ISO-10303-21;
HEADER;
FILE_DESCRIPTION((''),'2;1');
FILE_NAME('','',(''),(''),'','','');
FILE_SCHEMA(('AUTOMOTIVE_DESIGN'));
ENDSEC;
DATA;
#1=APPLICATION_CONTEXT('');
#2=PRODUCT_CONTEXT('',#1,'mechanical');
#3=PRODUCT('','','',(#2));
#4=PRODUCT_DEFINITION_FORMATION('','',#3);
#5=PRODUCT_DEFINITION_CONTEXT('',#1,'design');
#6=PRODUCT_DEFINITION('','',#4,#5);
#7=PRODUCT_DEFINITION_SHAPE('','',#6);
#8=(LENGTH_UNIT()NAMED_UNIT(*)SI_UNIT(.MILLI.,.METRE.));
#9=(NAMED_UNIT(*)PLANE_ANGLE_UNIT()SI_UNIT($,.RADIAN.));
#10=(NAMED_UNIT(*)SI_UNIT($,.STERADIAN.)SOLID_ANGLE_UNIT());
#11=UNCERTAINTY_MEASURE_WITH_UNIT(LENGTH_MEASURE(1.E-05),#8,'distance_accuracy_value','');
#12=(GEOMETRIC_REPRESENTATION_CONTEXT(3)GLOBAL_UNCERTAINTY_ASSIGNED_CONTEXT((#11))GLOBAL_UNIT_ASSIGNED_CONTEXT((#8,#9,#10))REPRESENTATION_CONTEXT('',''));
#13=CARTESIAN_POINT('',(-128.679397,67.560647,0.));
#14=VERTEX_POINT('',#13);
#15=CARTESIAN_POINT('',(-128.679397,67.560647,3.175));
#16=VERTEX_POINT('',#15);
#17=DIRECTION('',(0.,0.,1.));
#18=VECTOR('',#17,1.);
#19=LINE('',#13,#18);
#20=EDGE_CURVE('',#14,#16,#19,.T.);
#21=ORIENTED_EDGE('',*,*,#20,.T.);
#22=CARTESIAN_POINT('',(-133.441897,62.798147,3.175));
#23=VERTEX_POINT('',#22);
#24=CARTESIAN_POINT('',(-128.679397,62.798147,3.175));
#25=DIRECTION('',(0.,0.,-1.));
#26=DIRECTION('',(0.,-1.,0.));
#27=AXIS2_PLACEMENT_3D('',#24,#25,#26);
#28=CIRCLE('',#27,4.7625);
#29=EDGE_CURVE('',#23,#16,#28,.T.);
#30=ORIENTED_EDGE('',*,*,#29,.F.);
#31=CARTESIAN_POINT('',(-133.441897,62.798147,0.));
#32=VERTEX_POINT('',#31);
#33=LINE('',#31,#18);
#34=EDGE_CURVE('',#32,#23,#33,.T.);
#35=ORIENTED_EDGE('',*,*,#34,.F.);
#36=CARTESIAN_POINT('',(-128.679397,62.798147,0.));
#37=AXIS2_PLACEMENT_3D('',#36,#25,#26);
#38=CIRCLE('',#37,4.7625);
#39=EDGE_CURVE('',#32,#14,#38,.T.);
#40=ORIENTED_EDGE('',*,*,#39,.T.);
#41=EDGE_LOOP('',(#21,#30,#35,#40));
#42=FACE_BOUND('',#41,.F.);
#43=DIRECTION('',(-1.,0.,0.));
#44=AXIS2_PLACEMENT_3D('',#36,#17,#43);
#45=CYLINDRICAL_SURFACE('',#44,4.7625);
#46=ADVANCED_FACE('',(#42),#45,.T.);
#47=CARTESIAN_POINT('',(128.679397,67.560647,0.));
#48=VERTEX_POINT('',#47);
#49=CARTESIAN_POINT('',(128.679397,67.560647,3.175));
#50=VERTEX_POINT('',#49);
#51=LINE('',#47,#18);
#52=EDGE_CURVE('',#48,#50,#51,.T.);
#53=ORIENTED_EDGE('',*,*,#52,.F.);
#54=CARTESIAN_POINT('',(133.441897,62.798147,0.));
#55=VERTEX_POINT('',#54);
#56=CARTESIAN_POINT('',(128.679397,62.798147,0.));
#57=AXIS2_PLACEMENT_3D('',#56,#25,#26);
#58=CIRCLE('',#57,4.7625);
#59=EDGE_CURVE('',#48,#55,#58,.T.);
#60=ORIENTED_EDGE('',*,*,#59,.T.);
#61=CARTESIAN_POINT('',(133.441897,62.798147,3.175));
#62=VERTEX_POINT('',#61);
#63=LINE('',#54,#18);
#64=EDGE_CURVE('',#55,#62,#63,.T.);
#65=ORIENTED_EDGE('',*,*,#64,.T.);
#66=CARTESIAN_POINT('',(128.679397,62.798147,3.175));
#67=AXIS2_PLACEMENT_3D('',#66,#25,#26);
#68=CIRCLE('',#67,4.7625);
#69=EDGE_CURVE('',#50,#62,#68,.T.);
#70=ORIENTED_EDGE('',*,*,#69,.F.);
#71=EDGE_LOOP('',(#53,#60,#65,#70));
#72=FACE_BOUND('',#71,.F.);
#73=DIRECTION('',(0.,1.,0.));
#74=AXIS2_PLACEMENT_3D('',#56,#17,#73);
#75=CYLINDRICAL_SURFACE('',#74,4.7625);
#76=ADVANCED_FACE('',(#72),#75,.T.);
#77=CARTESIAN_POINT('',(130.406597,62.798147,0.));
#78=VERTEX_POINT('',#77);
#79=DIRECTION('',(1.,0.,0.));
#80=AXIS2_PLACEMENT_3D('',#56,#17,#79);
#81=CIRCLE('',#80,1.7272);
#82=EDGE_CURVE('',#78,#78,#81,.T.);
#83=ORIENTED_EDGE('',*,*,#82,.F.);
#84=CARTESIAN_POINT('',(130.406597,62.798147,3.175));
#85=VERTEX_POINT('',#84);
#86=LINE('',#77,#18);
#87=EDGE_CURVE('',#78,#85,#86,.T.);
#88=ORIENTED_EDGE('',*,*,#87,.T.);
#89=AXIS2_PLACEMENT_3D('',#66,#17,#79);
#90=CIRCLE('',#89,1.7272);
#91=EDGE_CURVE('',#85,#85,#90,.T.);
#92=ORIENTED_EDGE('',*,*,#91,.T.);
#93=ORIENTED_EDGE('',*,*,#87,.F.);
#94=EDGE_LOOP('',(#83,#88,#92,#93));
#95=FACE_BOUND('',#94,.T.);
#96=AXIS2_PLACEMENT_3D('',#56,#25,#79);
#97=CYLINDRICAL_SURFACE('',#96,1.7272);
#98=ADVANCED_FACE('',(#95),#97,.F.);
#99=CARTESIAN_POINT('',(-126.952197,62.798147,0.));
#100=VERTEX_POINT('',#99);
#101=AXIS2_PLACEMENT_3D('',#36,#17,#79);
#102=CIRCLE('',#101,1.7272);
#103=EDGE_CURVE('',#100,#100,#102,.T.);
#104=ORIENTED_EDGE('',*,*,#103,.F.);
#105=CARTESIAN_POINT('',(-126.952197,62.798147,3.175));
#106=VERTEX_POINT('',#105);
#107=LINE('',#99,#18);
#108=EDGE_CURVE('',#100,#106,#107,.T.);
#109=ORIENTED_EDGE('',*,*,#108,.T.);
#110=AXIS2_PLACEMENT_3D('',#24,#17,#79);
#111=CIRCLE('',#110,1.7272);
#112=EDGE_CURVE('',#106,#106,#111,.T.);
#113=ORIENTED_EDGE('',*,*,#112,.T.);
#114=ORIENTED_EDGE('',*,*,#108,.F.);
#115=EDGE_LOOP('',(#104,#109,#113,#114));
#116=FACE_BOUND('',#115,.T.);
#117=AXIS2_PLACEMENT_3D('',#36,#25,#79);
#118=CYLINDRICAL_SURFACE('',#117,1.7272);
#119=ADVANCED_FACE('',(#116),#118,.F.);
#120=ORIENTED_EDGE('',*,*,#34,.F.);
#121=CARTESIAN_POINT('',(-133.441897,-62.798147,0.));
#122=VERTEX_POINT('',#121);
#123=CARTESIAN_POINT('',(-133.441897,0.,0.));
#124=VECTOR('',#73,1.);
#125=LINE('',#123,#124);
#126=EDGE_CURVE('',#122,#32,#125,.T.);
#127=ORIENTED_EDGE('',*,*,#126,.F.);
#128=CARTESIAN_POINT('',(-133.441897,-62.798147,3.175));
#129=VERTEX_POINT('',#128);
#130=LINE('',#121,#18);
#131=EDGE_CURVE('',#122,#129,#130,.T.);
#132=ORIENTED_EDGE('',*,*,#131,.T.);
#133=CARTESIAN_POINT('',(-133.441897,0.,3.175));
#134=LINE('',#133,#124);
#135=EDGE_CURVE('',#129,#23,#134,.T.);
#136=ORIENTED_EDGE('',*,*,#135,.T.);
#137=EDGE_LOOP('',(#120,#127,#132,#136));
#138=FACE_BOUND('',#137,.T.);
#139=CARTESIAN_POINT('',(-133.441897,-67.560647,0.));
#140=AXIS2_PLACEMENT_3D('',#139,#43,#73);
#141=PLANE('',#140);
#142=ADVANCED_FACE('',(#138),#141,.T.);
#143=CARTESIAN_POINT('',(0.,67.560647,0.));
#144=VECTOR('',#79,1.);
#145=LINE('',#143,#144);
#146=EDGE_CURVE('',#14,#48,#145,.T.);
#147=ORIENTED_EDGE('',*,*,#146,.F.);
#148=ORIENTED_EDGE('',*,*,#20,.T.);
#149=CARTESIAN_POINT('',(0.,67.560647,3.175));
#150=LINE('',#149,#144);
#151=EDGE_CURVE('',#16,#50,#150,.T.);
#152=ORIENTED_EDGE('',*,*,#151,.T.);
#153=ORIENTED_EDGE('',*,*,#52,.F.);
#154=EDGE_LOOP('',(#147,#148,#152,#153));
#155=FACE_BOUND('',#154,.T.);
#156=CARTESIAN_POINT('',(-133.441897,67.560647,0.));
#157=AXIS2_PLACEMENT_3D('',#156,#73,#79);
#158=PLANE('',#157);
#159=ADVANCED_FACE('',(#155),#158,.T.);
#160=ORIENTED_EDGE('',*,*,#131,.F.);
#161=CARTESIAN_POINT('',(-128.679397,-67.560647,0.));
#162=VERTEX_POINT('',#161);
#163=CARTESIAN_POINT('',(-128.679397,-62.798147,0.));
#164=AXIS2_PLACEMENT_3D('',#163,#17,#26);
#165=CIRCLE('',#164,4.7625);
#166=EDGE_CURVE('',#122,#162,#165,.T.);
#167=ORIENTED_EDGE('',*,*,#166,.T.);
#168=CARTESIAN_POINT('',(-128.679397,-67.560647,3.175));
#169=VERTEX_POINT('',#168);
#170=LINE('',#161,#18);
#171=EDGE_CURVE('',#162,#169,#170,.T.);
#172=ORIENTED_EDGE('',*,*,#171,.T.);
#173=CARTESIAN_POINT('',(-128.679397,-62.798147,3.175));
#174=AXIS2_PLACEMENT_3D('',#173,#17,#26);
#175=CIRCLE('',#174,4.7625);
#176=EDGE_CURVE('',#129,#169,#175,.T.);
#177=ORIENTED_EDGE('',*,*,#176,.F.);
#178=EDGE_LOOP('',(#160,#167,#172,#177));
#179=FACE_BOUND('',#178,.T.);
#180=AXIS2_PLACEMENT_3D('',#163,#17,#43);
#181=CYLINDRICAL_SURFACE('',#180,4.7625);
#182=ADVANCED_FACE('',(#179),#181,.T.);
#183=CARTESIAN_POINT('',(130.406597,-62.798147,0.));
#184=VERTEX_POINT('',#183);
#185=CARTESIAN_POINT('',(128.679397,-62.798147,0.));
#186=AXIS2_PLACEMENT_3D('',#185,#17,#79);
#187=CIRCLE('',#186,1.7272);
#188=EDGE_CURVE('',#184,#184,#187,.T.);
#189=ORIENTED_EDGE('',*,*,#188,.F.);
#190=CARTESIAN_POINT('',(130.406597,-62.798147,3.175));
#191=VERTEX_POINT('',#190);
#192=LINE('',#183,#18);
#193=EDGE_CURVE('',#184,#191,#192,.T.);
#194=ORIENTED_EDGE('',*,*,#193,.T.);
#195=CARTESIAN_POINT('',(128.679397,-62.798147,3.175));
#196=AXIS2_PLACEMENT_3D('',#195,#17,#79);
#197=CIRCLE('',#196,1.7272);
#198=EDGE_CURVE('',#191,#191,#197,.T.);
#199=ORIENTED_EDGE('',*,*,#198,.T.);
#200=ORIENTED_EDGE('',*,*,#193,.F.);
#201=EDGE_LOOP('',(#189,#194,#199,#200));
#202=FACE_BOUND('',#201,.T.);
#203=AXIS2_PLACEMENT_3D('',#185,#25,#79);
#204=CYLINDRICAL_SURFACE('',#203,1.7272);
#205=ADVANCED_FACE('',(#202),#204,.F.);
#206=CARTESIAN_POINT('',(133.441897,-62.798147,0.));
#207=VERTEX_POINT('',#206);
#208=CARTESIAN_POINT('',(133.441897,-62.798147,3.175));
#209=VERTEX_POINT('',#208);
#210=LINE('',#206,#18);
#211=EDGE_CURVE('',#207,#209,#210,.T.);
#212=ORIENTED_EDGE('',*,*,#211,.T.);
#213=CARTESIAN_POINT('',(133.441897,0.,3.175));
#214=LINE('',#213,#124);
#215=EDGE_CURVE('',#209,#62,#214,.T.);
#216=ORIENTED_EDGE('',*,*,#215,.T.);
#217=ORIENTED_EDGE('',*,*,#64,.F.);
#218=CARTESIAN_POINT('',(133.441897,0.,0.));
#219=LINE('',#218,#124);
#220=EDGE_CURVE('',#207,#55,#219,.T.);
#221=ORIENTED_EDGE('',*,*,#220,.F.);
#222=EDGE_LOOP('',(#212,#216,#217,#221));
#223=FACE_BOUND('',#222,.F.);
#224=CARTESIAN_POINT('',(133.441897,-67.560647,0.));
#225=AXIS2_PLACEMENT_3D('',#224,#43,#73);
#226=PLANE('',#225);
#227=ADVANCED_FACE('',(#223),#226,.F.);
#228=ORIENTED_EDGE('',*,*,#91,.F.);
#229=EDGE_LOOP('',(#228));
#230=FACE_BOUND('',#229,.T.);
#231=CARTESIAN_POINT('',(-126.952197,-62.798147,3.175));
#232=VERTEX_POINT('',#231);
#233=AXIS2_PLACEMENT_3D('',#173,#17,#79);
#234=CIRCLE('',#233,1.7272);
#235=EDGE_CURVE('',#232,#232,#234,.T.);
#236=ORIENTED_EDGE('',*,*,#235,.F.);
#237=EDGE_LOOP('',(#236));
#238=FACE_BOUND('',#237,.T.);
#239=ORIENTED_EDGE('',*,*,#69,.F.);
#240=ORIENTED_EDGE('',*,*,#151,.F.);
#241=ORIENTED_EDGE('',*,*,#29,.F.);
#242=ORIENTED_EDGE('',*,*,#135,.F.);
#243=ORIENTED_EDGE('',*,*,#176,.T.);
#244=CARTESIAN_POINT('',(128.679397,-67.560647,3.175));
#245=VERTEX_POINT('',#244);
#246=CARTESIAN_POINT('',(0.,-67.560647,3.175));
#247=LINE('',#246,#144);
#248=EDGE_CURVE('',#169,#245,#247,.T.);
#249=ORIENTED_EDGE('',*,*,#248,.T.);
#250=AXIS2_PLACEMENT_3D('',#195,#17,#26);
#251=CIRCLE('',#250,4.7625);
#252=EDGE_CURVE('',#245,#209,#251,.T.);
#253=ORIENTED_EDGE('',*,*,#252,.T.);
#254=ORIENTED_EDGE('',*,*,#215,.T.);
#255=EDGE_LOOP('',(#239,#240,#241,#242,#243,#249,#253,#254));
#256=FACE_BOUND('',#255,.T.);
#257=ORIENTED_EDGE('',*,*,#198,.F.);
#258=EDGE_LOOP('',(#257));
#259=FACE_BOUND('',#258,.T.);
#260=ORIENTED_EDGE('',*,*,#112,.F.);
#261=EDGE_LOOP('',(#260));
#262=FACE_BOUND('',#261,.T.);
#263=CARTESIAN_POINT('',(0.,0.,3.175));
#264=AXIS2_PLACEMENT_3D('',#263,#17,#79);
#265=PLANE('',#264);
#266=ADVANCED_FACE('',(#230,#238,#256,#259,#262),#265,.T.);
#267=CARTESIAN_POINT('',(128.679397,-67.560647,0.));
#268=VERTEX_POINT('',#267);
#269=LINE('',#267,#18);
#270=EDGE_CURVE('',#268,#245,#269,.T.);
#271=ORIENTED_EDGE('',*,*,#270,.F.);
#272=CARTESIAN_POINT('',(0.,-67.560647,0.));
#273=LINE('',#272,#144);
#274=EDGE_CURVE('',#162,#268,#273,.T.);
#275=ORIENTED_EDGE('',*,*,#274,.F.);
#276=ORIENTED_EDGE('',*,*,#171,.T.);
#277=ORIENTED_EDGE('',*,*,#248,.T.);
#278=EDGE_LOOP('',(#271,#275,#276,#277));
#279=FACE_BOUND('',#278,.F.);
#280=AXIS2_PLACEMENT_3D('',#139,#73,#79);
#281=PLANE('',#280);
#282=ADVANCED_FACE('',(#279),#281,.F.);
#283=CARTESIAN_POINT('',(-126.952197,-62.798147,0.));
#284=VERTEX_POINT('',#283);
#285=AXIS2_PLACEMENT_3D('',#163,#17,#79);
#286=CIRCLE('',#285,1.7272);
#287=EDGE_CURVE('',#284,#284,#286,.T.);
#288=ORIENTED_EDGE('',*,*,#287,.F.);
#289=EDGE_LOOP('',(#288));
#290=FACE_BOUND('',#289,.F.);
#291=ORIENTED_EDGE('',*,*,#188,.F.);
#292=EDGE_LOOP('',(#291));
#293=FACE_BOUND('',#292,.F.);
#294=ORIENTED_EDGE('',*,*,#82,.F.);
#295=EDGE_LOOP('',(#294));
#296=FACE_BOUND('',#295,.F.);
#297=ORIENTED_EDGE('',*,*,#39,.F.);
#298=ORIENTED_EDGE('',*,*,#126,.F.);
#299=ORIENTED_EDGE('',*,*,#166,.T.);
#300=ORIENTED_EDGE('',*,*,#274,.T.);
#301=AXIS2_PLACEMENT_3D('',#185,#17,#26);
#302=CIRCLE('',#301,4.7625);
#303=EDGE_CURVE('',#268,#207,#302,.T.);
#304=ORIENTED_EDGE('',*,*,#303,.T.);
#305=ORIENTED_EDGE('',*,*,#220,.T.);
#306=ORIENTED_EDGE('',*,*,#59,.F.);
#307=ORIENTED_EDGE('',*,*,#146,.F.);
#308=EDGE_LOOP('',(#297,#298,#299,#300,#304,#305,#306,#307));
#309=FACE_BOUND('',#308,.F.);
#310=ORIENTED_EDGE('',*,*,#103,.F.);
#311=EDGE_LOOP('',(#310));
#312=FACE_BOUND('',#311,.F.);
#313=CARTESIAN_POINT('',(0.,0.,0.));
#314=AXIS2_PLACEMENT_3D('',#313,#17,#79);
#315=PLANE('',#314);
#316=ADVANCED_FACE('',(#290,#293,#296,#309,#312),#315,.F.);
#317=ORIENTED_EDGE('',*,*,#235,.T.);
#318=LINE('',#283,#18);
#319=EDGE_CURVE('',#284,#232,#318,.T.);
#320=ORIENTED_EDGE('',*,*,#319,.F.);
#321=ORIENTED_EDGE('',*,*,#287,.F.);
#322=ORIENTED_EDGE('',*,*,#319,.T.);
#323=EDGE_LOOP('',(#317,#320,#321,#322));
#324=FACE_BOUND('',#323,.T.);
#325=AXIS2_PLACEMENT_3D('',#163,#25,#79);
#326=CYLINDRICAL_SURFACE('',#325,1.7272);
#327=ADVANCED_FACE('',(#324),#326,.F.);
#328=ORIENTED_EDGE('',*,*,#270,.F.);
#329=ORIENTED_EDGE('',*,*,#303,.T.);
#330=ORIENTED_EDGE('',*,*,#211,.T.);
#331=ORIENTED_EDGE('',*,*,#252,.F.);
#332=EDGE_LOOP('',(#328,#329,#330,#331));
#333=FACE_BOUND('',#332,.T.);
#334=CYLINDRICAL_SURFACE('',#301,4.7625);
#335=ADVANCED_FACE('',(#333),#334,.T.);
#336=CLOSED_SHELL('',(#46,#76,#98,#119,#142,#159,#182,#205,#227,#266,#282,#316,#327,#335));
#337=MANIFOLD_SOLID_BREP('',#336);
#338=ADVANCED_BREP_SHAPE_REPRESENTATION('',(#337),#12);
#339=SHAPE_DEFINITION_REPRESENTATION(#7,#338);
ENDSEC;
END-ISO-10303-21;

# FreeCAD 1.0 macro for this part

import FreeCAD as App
import Part
import Sketcher

V = App.Vector
Q = App.Units.Quantity


def edges_at(feature, points):
    """Names of the edges that pass closest to the given points."""
    edges = feature.Shape.Edges
    near = lambda p: min(range(len(edges)), key=lambda i: edges[i].distToShape(Part.Vertex(*p))[0])
    return sorted({f"Edge{near(p) + 1}" for p in points})


def add_polygon(sketch, points):
    """Adds a closed chain of lines whose ends are joined by coincident constraints."""
    first, n = sketch.GeometryCount, len(points)
    for a, b in zip(points, points[1:] + points[:1]):
        sketch.addGeometry(Part.LineSegment(App.Vector(*a, 0), App.Vector(*b, 0)), False)
    for i in range(n):
        sketch.addConstraint(Sketcher.Constraint("Coincident", first + i, 2, first + (i + 1) % n, 1))

doc = App.newDocument("Part")
body = doc.addObject("PartDesign::Body", "Body")

# Sketch on XY plane
sketch1 = doc.addObject("Sketcher::SketchObject", "Sketch")
body.addObject(sketch1)
sketch1.AttachmentSupport = (doc.XY_Plane, [""])
sketch1.MapMode = "FlatFace"
add_polygon(sketch1, [(-133.441897, 67.560647), (-133.441897, -67.560647), (133.441897, -67.560647), (133.441897, 67.560647)])  # lines 0-3
sketch1.addGeometry(Part.Circle(V(-128.679397, -62.798147, 0), V(0, 0, 1), 1.7272), False)  # 4
sketch1.addGeometry(Part.Circle(V(128.679397, -62.798147, 0), V(0, 0, 1), 1.7272), False)  # 5
sketch1.addGeometry(Part.Circle(V(-128.679397, 62.798147, 0), V(0, 0, 1), 1.7272), False)  # 6
sketch1.addGeometry(Part.Circle(V(128.679397, 62.798147, 0), V(0, 0, 1), 1.7272), False)  # 7
sketch1.addConstraint(Sketcher.Constraint("Vertical", 0))
sketch1.addConstraint(Sketcher.Constraint("Horizontal", 1))
sketch1.addConstraint(Sketcher.Constraint("Vertical", 2))
sketch1.addConstraint(Sketcher.Constraint("Horizontal", 3))
sketch1.addConstraint(Sketcher.Constraint("Equal", 4, 5))
sketch1.addConstraint(Sketcher.Constraint("Equal", 5, 6))
sketch1.addConstraint(Sketcher.Constraint("Equal", 6, 7))
sketch1.addConstraint(Sketcher.Constraint("Symmetric", 5, 3, 6, 3, -1, 1))
sketch1.addConstraint(Sketcher.Constraint("Symmetric", 4, 3, 7, 3, -1, 1))
sketch1.addConstraint(Sketcher.Constraint("Symmetric", 0, 2, 2, 2, -1, 1))
sketch1.addConstraint(Sketcher.Constraint("Symmetric", 4, 3, 5, 3, -2))
sketch1.addConstraint(Sketcher.Constraint("Diameter", 4, Q("0.136 in")))
sketch1.addConstraint(Sketcher.Constraint("DistanceX", 0, 2, 4, 3, Q("0.1875 in")))
sketch1.addConstraint(Sketcher.Constraint("DistanceY", 0, 2, 4, 3, Q("0.1875 in")))
sketch1.addConstraint(Sketcher.Constraint("DistanceX", 1, 1, 1, 2, Q("266.883794 mm")))
sketch1.addConstraint(Sketcher.Constraint("DistanceY", 0, 2, 0, 1, Q("135.121294 mm")))
pad1 = doc.addObject("PartDesign::Pad", "Pad")
body.addObject(pad1)
pad1.Profile = sketch1
pad1.Length = Q("0.125 in")
doc.recompute()

fillet = doc.addObject("PartDesign::Fillet", "Fillet")
body.addObject(fillet)
fillet.Base = (pad1, edges_at(pad1, [
    (133.442, -67.561, 1.587),
    (133.442, 67.561, 1.587),
    (-133.442, -67.561, 1.587),
    (-133.442, 67.561, 1.587),
]))
fillet.Radius = Q("0.1875 in")

doc.recompute()
